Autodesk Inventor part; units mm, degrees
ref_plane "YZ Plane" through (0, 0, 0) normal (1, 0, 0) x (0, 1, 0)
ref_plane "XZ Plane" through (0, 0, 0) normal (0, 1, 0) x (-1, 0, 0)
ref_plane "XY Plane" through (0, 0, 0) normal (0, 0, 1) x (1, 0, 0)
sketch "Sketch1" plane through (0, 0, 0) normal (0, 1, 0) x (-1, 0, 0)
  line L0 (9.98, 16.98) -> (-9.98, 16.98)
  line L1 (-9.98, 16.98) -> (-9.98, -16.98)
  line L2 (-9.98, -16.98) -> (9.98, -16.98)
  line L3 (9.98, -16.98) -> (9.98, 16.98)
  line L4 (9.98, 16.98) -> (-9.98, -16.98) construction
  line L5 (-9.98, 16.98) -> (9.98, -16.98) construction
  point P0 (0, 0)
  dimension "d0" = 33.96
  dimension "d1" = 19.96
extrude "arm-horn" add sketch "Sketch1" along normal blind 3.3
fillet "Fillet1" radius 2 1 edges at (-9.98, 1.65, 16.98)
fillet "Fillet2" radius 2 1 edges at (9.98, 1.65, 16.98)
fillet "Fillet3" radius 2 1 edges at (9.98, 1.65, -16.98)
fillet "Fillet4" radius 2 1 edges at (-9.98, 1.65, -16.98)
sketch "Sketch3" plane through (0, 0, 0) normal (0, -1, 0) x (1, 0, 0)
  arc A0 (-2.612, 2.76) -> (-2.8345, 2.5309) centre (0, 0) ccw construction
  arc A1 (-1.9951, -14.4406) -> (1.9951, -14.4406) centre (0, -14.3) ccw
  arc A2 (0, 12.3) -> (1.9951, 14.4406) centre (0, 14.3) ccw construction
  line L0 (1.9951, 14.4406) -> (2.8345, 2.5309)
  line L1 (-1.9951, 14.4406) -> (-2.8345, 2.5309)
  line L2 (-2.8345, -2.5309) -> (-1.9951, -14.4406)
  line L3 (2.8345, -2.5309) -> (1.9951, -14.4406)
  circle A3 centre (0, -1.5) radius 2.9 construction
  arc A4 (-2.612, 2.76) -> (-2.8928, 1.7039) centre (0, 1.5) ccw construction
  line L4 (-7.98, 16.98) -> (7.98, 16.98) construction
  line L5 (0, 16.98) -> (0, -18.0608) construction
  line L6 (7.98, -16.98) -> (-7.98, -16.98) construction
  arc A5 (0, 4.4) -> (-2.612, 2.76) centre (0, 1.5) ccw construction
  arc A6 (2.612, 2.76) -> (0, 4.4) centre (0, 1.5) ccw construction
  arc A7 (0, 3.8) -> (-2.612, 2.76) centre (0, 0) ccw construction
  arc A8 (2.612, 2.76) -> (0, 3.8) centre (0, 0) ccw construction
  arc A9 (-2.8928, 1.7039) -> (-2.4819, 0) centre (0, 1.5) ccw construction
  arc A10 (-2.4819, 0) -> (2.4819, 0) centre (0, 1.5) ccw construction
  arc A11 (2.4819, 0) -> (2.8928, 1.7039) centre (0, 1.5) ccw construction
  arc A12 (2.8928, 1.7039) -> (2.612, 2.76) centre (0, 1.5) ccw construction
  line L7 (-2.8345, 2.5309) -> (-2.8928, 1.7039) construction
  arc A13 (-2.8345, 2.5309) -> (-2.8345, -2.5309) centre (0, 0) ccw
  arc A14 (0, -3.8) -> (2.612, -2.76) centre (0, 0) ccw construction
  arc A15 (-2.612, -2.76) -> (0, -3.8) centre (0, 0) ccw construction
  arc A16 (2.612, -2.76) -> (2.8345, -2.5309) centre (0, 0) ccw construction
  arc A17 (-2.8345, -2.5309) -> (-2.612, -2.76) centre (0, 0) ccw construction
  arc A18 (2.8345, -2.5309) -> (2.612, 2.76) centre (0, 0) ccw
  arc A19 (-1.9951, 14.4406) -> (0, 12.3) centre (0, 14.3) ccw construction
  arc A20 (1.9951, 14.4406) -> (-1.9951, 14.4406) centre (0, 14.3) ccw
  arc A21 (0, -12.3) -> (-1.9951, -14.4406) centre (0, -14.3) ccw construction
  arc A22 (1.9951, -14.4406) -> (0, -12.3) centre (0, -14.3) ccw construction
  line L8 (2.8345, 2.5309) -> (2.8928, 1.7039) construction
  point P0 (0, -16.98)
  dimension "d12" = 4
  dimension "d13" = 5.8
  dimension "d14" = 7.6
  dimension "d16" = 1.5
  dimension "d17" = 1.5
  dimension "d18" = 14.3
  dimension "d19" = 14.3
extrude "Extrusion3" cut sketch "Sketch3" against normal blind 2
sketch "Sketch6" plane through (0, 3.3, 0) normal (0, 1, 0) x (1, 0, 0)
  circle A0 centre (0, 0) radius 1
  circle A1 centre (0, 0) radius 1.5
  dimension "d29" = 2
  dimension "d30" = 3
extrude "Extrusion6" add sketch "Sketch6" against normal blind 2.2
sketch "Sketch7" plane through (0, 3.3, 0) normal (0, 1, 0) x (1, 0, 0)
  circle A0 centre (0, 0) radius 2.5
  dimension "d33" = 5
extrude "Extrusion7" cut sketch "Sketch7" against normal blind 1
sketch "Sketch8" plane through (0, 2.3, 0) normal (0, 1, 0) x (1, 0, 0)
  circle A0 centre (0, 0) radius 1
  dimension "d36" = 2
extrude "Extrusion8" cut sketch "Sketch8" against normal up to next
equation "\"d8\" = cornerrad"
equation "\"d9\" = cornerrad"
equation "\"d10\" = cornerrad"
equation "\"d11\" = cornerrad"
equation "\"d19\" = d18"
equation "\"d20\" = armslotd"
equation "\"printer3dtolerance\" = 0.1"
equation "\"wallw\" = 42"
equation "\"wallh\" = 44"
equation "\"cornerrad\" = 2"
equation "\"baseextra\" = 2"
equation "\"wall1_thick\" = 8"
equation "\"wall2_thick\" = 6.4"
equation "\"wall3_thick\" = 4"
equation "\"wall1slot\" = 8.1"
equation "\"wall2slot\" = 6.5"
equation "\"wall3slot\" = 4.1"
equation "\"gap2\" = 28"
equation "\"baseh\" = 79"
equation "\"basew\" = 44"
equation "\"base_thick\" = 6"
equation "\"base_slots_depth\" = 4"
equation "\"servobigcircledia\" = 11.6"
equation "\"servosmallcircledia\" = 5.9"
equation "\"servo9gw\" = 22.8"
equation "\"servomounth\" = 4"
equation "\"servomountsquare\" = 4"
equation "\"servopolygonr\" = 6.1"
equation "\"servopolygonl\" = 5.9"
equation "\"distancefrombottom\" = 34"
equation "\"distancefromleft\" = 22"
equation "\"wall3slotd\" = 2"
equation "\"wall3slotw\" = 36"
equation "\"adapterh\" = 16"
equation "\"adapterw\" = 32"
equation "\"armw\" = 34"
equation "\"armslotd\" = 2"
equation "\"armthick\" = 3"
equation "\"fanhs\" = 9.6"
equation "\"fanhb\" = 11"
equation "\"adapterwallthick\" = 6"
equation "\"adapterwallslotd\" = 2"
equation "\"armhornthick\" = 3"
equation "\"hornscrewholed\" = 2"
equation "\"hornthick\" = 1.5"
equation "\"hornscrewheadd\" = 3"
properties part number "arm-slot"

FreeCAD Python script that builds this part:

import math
import FreeCAD as App
import Part
import Sketcher

V = App.Vector
Q = App.Units.Quantity


def edges_at(feature, points):
    """Names of the edges that pass closest to the given points."""
    edges = feature.Shape.Edges
    near = lambda p: min(range(len(edges)), key=lambda i: edges[i].distToShape(Part.Vertex(*p))[0])
    return sorted({f"Edge{near(p) + 1}" for p in points})

doc = App.newDocument("Part")
params = doc.addObject("Spreadsheet::Sheet", "Params")
for row, (alias, value) in enumerate([
    ("sketch1_width", "19.96 mm"),
    ("sketch1_height", "33.96 mm"),
    ("pad1_length", "3.3 mm"),
    ("fillet_radius", "2 mm"),
    ("fillet2_radius", "2 mm"),
    ("fillet3_radius", "2 mm"),
    ("fillet4_radius", "2 mm"),
    ("sketch2_radius", "2 mm"),
    ("sketch2_radius2", "2 mm"),
    ("sketch2_radius3", "3.8 mm"),
    ("sketch2_radius4", "3.8 mm"),
    ("pocket1_length", "2 mm"),
    ("sketch3_diameter", "3 mm"),
    ("sketch3_diameter2", "2 mm"),
    ("pad2_length", "2.2 mm"),
    ("sketch4_diameter", "5 mm"),
    ("pocket2_length", "1 mm"),
    ("sketch5_diameter", "2 mm"),
], start=1):
    params.set(f"A{row}", alias)
    params.set(f"B{row}", "=" + value)
    params.setAlias(f"B{row}", alias)

body = doc.addObject("PartDesign::Body", "Body")

# Sketch on XZ plane
sketch1 = body.newObject("Sketcher::SketchObject", "Sketch")
sketch1.AttachmentSupport = (doc.getObject("XZ_Plane"), [""])
sketch1.MapMode = "FlatFace"
sketch1.addGeometry([
    Part.LineSegment(V(-10, -17, 0), V(-10, 17, 0)),
    Part.LineSegment(V(-10, 17, 0), V(10, 17, 0)),
    Part.LineSegment(V(10, 17, 0), V(10, -17, 0)),
    Part.LineSegment(V(10, -17, 0), V(-10, -17, 0)),
], False)
sketch1.addConstraint([
    Sketcher.Constraint("Coincident", 0, 2, 1, 1),
    Sketcher.Constraint("Coincident", 1, 2, 2, 1),
    Sketcher.Constraint("Coincident", 2, 2, 3, 1),
    Sketcher.Constraint("Coincident", 3, 2, 0, 1),
    Sketcher.Constraint("Vertical", 0),
    Sketcher.Constraint("Horizontal", 1),
    Sketcher.Constraint("Vertical", 2),
    Sketcher.Constraint("Horizontal", 3),
    Sketcher.Constraint("Symmetric", 0, 2, 2, 2, -1, 1),
    Sketcher.Constraint("DistanceX", 1, 1, 1, 2, Q("19.96 mm")),
    Sketcher.Constraint("DistanceY", 0, 1, 0, 2, Q("33.96 mm")),
])
sketch1.setExpression("Constraints[9]", "Params.sketch1_width")
sketch1.setExpression("Constraints[10]", "Params.sketch1_height")
pad1 = body.newObject("PartDesign::Pad", "Pad")
pad1.Profile = sketch1
pad1.setExpression("Length", "Params.pad1_length")
pad1.Reversed = True
doc.recompute()

fillet = body.newObject("PartDesign::Fillet", "Fillet")
fillet.Base = (pad1, edges_at(pad1, [(-9.98, 1.65, 16.98)]))
fillet.setExpression("Radius", "Params.fillet_radius")
doc.recompute()

fillet2 = body.newObject("PartDesign::Fillet", "Fillet001")
fillet2.Base = (fillet, edges_at(fillet, [(9.98, 1.65, 16.98)]))
fillet2.setExpression("Radius", "Params.fillet2_radius")
doc.recompute()

fillet3 = body.newObject("PartDesign::Fillet", "Fillet002")
fillet3.Base = (fillet2, edges_at(fillet2, [(9.98, 1.65, -16.98)]))
fillet3.setExpression("Radius", "Params.fillet3_radius")
doc.recompute()

fillet4 = body.newObject("PartDesign::Fillet", "Fillet003")
fillet4.Base = (fillet3, edges_at(fillet3, [(-9.98, 1.65, -16.98)]))
fillet4.setExpression("Radius", "Params.fillet4_radius")

# Sketch on XZ plane
sketch2 = body.newObject("Sketcher::SketchObject", "Sketch001")
sketch2.AttachmentSupport = (doc.getObject("XZ_Plane"), [""])
sketch2.MapMode = "FlatFace"
sketch2.addGeometry([
    Part.LineSegment(V(-2.8345, -2.5309, 0), V(-1.9951, -14.4406, 0)),  # 0
    Part.ArcOfCircle(Part.Circle(V(0, -14.3, 0), V(0, 0, 1), 2.000048), math.radians(-175.968879), math.radians(-4.031121)),  # 1
    Part.LineSegment(V(1.9951, -14.4406, 0), V(2.8345, -2.5309, 0)),  # 2
    Part.ArcOfCircle(Part.Circle(V(0, 0, 0), V(0, 0, 1), 3.800019), math.radians(-41.761384), math.radians(41.761384)),  # 3
    Part.LineSegment(V(2.8345, 2.5309, 0), V(1.9951, 14.4406, 0)),  # 4
    Part.ArcOfCircle(Part.Circle(V(0, 14.3, 0), V(0, 0, 1), 2.000048), math.radians(4.031121), math.radians(175.968879)),  # 5
    Part.LineSegment(V(-1.9951, 14.4406, 0), V(-2.8345, 2.5309, 0)),  # 6
    Part.ArcOfCircle(Part.Circle(V(0, 0, 0), V(0, 0, 1), 3.79998), math.radians(138.238616), math.radians(221.761384)),  # 7
], False)
sketch2.addConstraint([
    Sketcher.Constraint("Coincident", 0, 2, 1, 1),
    Sketcher.Constraint("Coincident", 1, 2, 2, 1),
    Sketcher.Constraint("Coincident", 2, 2, 3, 1),
    Sketcher.Constraint("Coincident", 3, 2, 4, 1),
    Sketcher.Constraint("Coincident", 4, 2, 5, 1),
    Sketcher.Constraint("Coincident", 5, 2, 6, 1),
    Sketcher.Constraint("Coincident", 6, 2, 7, 1),
    Sketcher.Constraint("Coincident", 7, 2, 0, 1),
    Sketcher.Constraint("Coincident", 3, 3, -1, 1),
    Sketcher.Constraint("Coincident", 7, 3, -1, 1),
    Sketcher.Constraint("PointOnObject", 1, 3, -2),
    Sketcher.Constraint("PointOnObject", 5, 3, -2),
    Sketcher.Constraint("Radius", 1, Q("2 mm")),
    Sketcher.Constraint("Radius", 5, Q("2 mm")),
    Sketcher.Constraint("Radius", 3, Q("3.8 mm")),
    Sketcher.Constraint("Radius", 7, Q("3.8 mm")),
    Sketcher.Constraint("DistanceY", 1, 3, -1, 1, Q("14.3 mm")),
    Sketcher.Constraint("DistanceY", -1, 1, 5, 3, Q("14.3 mm")),
    Sketcher.Constraint("DistanceX", 0, 2, -1, 1, Q("1.995 mm")),
    Sketcher.Constraint("DistanceX", -1, 1, 1, 2, Q("1.995 mm")),
    Sketcher.Constraint("DistanceY", 2, 2, -1, 1, Q("2.531 mm")),
    Sketcher.Constraint("DistanceY", -1, 1, 3, 2, Q("2.531 mm")),
    Sketcher.Constraint("DistanceX", -1, 1, 4, 2, Q("1.995 mm")),
    Sketcher.Constraint("DistanceX", 5, 2, -1, 1, Q("1.995 mm")),
    Sketcher.Constraint("DistanceY", -1, 1, 6, 2, Q("2.531 mm")),
    Sketcher.Constraint("DistanceY", 7, 2, -1, 1, Q("2.531 mm")),
])
sketch2.setExpression("Constraints[12]", "Params.sketch2_radius")
sketch2.setExpression("Constraints[13]", "Params.sketch2_radius2")
sketch2.setExpression("Constraints[14]", "Params.sketch2_radius3")
sketch2.setExpression("Constraints[15]", "Params.sketch2_radius4")
pocket1 = body.newObject("PartDesign::Pocket", "Pocket")
pocket1.Profile = sketch2
pocket1.setExpression("Length", "Params.pocket1_length")

# Sketch on XZ plane
sketch3 = body.newObject("Sketcher::SketchObject", "Sketch002")
sketch3.AttachmentSupport = (doc.getObject("XZ_Plane"), [""])
sketch3.MapMode = "FlatFace"
sketch3.AttachmentOffset = App.Placement(V(0, 0, -3.3), App.Rotation())
sketch3.addGeometry([
    Part.Circle(V(0, 0, 0), V(0, 0, 1), 1.5),
    Part.Circle(V(0, 0, 0), V(0, 0, 1), 1),
], False)
sketch3.addConstraint([
    Sketcher.Constraint("Coincident", 0, 3, -1, 1),
    Sketcher.Constraint("Coincident", 1, 3, -1, 1),
    Sketcher.Constraint("Diameter", 0, Q("3 mm")),
    Sketcher.Constraint("Diameter", 1, Q("2 mm")),
])
sketch3.setExpression("Constraints[2]", "Params.sketch3_diameter")
sketch3.setExpression("Constraints[3]", "Params.sketch3_diameter2")
pad2 = body.newObject("PartDesign::Pad", "Pad001")
pad2.Profile = sketch3
pad2.setExpression("Length", "Params.pad2_length")

# Sketch on XZ plane
sketch4 = body.newObject("Sketcher::SketchObject", "Sketch003")
sketch4.AttachmentSupport = (doc.getObject("XZ_Plane"), [""])
sketch4.MapMode = "FlatFace"
sketch4.AttachmentOffset = App.Placement(V(0, 0, -3.3), App.Rotation())
sketch4.addGeometry(Part.Circle(V(0, 0, 0), V(0, 0, 1), 2.5), False)
sketch4.addConstraint([
    Sketcher.Constraint("Coincident", 0, 3, -1, 1),
    Sketcher.Constraint("Diameter", 0, Q("5 mm")),
])
sketch4.setExpression("Constraints[1]", "Params.sketch4_diameter")
pocket2 = body.newObject("PartDesign::Pocket", "Pocket001")
pocket2.Profile = sketch4
pocket2.setExpression("Length", "Params.pocket2_length")
pocket2.Reversed = True

# Sketch on XZ plane
sketch5 = body.newObject("Sketcher::SketchObject", "Sketch004")
sketch5.AttachmentSupport = (doc.getObject("XZ_Plane"), [""])
sketch5.MapMode = "FlatFace"
sketch5.AttachmentOffset = App.Placement(V(0, 0, -2.3), App.Rotation())
sketch5.addGeometry(Part.Circle(V(0, 0, 0), V(0, 0, 1), 1), False)
sketch5.addConstraint([
    Sketcher.Constraint("Coincident", 0, 3, -1, 1),
    Sketcher.Constraint("Diameter", 0, Q("2 mm")),
])
sketch5.setExpression("Constraints[1]", "Params.sketch5_diameter")
pocket3 = body.newObject("PartDesign::Pocket", "Pocket002")
pocket3.Profile = sketch5
pocket3.Type = "UpToFirst"
pocket3.Reversed = True

doc.recompute()
